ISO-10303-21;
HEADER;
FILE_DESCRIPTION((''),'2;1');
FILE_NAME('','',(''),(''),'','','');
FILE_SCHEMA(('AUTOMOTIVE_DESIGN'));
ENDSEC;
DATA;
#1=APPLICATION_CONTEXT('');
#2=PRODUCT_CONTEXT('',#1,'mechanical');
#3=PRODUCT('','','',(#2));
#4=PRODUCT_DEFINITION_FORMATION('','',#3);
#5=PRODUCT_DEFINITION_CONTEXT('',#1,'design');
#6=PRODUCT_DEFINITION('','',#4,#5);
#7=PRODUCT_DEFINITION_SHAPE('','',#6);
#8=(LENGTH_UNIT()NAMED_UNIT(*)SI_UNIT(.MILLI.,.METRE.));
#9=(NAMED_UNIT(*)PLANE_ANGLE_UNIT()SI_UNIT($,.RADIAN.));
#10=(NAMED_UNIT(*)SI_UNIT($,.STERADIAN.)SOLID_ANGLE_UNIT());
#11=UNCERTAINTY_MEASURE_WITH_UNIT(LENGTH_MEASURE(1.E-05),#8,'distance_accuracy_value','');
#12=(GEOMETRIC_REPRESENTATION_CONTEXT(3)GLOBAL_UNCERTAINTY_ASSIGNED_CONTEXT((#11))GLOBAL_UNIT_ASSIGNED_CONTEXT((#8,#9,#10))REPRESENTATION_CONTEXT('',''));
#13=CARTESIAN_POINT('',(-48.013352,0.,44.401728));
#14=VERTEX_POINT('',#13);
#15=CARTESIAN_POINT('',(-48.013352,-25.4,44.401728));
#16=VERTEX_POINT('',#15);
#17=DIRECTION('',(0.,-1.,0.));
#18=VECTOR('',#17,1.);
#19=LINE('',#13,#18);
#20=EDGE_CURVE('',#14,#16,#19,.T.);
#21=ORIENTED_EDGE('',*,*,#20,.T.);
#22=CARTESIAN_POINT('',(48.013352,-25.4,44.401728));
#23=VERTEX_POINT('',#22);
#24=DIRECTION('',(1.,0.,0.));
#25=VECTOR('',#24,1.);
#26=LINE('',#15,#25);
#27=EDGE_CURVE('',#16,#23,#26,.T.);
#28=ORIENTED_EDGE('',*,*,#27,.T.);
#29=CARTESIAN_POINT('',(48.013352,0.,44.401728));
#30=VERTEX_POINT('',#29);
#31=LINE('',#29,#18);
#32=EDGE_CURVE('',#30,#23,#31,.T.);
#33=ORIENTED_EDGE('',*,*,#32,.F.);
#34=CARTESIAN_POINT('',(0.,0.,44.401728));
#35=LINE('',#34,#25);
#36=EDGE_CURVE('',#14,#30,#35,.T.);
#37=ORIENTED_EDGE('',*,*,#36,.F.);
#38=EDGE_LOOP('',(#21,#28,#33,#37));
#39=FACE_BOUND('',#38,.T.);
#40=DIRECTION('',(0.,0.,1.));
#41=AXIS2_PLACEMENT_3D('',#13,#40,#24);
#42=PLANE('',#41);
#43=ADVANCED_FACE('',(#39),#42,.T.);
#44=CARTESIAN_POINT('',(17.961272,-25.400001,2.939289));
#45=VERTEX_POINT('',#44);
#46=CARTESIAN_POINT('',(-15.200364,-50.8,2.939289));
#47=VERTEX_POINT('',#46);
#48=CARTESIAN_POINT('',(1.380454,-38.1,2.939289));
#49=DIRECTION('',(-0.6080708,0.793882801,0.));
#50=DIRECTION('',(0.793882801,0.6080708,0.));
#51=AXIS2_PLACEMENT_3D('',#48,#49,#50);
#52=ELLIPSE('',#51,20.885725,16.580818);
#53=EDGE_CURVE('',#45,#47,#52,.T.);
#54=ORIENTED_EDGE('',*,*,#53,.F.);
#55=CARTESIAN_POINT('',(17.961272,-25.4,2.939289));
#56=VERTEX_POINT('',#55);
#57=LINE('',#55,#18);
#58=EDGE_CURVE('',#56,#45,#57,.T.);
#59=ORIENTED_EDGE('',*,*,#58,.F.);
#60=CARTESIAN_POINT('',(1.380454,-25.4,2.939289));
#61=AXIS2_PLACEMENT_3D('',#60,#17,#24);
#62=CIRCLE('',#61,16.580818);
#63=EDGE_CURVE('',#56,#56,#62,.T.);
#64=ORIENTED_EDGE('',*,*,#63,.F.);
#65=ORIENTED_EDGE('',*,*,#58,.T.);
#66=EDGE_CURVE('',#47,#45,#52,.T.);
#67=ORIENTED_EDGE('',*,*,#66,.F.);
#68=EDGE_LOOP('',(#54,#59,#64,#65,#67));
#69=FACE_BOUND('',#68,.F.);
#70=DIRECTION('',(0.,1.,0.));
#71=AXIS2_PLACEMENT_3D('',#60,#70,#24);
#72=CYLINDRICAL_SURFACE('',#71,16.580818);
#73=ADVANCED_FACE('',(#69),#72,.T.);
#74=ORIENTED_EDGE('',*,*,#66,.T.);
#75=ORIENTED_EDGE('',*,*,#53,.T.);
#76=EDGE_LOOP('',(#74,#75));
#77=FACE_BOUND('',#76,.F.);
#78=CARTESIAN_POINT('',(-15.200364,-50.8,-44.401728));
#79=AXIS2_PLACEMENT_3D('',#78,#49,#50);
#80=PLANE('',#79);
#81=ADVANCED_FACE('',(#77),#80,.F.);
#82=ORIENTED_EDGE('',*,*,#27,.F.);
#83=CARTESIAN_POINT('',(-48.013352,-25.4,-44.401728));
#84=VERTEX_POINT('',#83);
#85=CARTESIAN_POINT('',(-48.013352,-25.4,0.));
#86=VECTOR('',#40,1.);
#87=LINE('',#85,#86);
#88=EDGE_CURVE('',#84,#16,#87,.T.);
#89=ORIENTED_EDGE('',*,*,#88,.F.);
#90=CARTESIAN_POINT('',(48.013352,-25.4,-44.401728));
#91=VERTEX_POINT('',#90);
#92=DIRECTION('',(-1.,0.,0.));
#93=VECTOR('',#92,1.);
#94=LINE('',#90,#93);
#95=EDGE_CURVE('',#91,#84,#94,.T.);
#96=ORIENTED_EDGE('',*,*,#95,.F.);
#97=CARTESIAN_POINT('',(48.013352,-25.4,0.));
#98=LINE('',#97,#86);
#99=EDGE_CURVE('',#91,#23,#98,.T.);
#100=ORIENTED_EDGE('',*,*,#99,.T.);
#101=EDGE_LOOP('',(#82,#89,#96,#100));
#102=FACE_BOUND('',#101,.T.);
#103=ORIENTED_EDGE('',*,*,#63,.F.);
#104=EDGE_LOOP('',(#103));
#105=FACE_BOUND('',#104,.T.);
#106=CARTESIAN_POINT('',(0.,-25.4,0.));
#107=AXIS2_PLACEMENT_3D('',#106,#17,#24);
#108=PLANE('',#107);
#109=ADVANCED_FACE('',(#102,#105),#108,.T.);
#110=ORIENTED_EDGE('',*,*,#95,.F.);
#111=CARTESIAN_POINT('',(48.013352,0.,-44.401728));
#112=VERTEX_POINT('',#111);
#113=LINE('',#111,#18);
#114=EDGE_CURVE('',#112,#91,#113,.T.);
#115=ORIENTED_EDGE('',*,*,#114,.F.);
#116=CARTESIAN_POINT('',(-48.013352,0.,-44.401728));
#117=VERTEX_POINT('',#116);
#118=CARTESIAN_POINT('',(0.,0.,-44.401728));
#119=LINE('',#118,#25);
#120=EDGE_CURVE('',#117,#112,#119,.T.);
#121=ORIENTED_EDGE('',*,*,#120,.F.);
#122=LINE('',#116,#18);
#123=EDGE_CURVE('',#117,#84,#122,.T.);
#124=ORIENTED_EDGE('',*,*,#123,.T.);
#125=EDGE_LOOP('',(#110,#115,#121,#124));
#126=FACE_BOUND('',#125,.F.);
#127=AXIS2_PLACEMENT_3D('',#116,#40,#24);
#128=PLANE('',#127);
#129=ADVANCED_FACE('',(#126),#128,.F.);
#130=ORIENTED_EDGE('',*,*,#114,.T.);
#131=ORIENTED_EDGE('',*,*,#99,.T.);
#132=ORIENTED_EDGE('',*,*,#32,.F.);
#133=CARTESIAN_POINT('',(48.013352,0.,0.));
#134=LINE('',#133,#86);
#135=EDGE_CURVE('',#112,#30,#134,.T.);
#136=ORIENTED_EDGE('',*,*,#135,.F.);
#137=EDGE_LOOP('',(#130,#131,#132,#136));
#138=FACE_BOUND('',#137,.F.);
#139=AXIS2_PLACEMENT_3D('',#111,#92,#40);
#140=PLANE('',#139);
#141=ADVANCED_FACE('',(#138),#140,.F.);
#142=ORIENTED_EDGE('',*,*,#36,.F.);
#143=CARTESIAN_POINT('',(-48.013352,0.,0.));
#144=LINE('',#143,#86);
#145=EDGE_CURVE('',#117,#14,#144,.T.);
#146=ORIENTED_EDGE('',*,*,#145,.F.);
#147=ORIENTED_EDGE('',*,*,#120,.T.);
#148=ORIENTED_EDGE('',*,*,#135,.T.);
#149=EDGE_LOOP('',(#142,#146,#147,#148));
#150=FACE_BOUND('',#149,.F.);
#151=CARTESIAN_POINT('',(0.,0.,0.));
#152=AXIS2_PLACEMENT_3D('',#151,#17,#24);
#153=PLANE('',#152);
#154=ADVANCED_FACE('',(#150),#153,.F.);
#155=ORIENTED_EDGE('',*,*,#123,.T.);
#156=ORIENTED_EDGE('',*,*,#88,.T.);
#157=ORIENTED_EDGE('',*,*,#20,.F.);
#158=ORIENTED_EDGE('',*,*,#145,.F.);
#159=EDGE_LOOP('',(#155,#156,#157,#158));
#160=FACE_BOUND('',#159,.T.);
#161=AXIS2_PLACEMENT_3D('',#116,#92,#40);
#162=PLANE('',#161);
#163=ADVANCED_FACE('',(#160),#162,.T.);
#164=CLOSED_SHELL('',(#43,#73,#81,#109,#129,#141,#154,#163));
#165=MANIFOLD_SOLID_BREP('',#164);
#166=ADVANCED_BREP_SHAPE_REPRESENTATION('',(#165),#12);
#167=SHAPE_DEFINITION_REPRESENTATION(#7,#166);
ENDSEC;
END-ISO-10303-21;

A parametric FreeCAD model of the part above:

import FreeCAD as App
import Part
import Sketcher
from FreeCAD import Vector
Q = App.Units.Quantity


def add_polygon(sketch, points):
    """Adds a closed chain of lines whose ends are joined by coincident constraints."""
    first, n = sketch.GeometryCount, len(points)
    for a, b in zip(points, points[1:] + points[:1]):
        sketch.addGeometry(Part.LineSegment(App.Vector(*a, 0), App.Vector(*b, 0)), False)
    for i in range(n):
        sketch.addConstraint(Sketcher.Constraint("Coincident", first + i, 2, first + (i + 1) % n, 1))

doc = App.newDocument("Part")
body = doc.addObject("PartDesign::Body", "Body")

# Sketch on XZ plane
sketch1 = doc.addObject("Sketcher::SketchObject", "Sketch")
body.addObject(sketch1)
sketch1.AttachmentSupport = (doc.XZ_Plane, [""])
sketch1.MapMode = "FlatFace"
add_polygon(sketch1, [(-48.013352, 44.401728), (-48.013352, -44.401728), (48.013352, -44.401728), (48.013352, 44.401728)])  # lines 0-3
sketch1.addConstraint([
    Sketcher.Constraint("Vertical", 0),
    Sketcher.Constraint("Horizontal", 1),
    Sketcher.Constraint("Vertical", 2),
    Sketcher.Constraint("Horizontal", 3),
    Sketcher.Constraint("Symmetric", 0, 2, 2, 2, -1, 1),
    Sketcher.Constraint("DistanceX", 1, 1, 1, 2, Q("96.026704 mm")),
    Sketcher.Constraint("DistanceY", 0, 2, 0, 1, Q("88.803456 mm")),
])
pad1 = doc.addObject("PartDesign::Pad", "Pad")
body.addObject(pad1)
pad1.Profile = sketch1
pad1.Length = Q("1 in")

# Sketch on XZ plane
sketch2 = doc.addObject("Sketcher::SketchObject", "Sketch001")
body.addObject(sketch2)
sketch2.AttachmentSupport = (doc.XZ_Plane, [""])
sketch2.MapMode = "FlatFace"
sketch2.AttachmentOffset = App.Placement(Vector(0, 0, 1 * 25.4), App.Rotation())
sketch2.addGeometry(Part.Circle(Vector(1.380454, 2.939289, 0), Vector(0, 0, 1), 16.580818), False)
sketch2.addConstraint([
    Sketcher.Constraint("Diameter", 0, Q("33.161636 mm")),
    Sketcher.Constraint("DistanceY", -1, 1, 0, 3, Q("2.939289 mm")),
    Sketcher.Constraint("DistanceX", -1, 1, 0, 3, Q("1.380454 mm")),
])
pad2 = doc.addObject("PartDesign::Pad", "Pad001")
body.addObject(pad2)
pad2.Profile = sketch2
pad2.Length = Q("1 in")

# Sketch on XY plane
sketch3 = doc.addObject("Sketcher::SketchObject", "Sketch002")
body.addObject(sketch3)
sketch3.AttachmentSupport = (doc.XY_Plane, [""])
sketch3.MapMode = "FlatFace"
sketch3.AttachmentOffset = App.Placement(Vector(0, 0, -44.401728), App.Rotation())
add_polygon(sketch3, [(17.961273, -50.8), (-15.200364, -50.8), (17.961273, -25.4)])  # lines 0-2
sketch3.addConstraint([
    Sketcher.Constraint("Horizontal", 0),
    Sketcher.Constraint("Vertical", 2),
    Sketcher.Constraint("DistanceY", 2, 2, 2, 1, Q("1 in")),
    Sketcher.Constraint("DistanceY", 0, 2, -1, 1, Q("2 in")),
    Sketcher.Constraint("Distance", 1, Q("41.771452 mm")),
    Sketcher.Constraint("DistanceX", 0, 2, -1, 1, Q("15.200364 mm")),
])
pocket1 = doc.addObject("PartDesign::Pocket", "Pocket")
body.addObject(pocket1)
pocket1.Profile = sketch3
pocket1.Type = "ThroughAll"
pocket1.Reversed = True

doc.recompute()
